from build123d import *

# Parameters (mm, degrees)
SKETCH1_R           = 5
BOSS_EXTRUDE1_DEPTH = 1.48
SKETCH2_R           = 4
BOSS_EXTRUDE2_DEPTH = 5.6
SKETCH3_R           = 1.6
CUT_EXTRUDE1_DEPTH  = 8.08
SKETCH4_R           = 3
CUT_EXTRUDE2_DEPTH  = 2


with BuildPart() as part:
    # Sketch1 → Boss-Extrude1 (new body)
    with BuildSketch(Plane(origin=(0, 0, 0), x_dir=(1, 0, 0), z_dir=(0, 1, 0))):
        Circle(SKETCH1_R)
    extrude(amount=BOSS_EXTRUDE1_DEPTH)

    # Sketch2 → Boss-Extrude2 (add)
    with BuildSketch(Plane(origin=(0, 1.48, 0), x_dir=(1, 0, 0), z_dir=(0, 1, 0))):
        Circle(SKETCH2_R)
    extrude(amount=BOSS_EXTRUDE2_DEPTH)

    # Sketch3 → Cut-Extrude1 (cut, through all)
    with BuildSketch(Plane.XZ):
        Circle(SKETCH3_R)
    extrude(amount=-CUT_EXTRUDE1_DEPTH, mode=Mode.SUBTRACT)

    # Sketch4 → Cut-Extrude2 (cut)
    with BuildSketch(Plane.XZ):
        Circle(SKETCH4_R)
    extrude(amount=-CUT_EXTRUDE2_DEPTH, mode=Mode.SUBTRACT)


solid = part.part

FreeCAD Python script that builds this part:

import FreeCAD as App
import Part
import Sketcher
Q = App.Units.Quantity

doc = App.newDocument("Part")
body = doc.addObject("PartDesign::Body", "Body")

# Sketch on XZ plane
sketch1 = body.newObject("Sketcher::SketchObject", "Sketch")
sketch1.AttachmentSupport = (doc.getObject("XZ_Plane"), [""])
sketch1.MapMode = "FlatFace"
sketch1.addGeometry(Part.Circle(App.Vector(0, 0, 0), App.Vector(0, 0, 1), 5), False)
sketch1.addConstraint(Sketcher.Constraint("Coincident", 0, 3, -1, 1))
sketch1.addConstraint(Sketcher.Constraint("Diameter", 0, Q("10 mm")))
pad1 = body.newObject("PartDesign::Pad", "Pad")
pad1.Profile = sketch1
pad1.Length = 1.48
pad1.Reversed = True

# Sketch on XZ plane
sketch2 = body.newObject("Sketcher::SketchObject", "Sketch001")
sketch2.AttachmentSupport = (doc.getObject("XZ_Plane"), [""])
sketch2.MapMode = "FlatFace"
sketch2.AttachmentOffset = App.Placement(App.Vector(0, 0, -1.48), App.Rotation())
sketch2.addGeometry(Part.Circle(App.Vector(0, 0, 0), App.Vector(0, 0, 1), 4), False)
sketch2.addConstraint(Sketcher.Constraint("Coincident", 0, 3, -1, 1))
sketch2.addConstraint(Sketcher.Constraint("Diameter", 0, Q("8 mm")))
pad2 = body.newObject("PartDesign::Pad", "Pad001")
pad2.Profile = sketch2
pad2.Length = 5.6
pad2.Reversed = True

# Sketch on XZ plane
sketch3 = body.newObject("Sketcher::SketchObject", "Sketch002")
sketch3.AttachmentSupport = (doc.getObject("XZ_Plane"), [""])
sketch3.MapMode = "FlatFace"
sketch3.addGeometry(Part.Circle(App.Vector(0, 0, 0), App.Vector(0, 0, 1), 1.6), False)
sketch3.addConstraint(Sketcher.Constraint("Coincident", 0, 3, -1, 1))
sketch3.addConstraint(Sketcher.Constraint("Diameter", 0, Q("3.2 mm")))
pocket1 = body.newObject("PartDesign::Pocket", "Pocket")
pocket1.Profile = sketch3
pocket1.Type = "ThroughAll"

# Sketch on XZ plane
sketch4 = body.newObject("Sketcher::SketchObject", "Sketch003")
sketch4.AttachmentSupport = (doc.getObject("XZ_Plane"), [""])
sketch4.MapMode = "FlatFace"
sketch4.addGeometry(Part.Circle(App.Vector(0, 0, 0), App.Vector(0, 0, 1), 3), False)
sketch4.addConstraint(Sketcher.Constraint("Coincident", 0, 3, -1, 1))
sketch4.addConstraint(Sketcher.Constraint("Diameter", 0, Q("6 mm")))
pocket2 = body.newObject("PartDesign::Pocket", "Pocket001")
pocket2.Profile = sketch4
pocket2.Length = 2

doc.recompute()
